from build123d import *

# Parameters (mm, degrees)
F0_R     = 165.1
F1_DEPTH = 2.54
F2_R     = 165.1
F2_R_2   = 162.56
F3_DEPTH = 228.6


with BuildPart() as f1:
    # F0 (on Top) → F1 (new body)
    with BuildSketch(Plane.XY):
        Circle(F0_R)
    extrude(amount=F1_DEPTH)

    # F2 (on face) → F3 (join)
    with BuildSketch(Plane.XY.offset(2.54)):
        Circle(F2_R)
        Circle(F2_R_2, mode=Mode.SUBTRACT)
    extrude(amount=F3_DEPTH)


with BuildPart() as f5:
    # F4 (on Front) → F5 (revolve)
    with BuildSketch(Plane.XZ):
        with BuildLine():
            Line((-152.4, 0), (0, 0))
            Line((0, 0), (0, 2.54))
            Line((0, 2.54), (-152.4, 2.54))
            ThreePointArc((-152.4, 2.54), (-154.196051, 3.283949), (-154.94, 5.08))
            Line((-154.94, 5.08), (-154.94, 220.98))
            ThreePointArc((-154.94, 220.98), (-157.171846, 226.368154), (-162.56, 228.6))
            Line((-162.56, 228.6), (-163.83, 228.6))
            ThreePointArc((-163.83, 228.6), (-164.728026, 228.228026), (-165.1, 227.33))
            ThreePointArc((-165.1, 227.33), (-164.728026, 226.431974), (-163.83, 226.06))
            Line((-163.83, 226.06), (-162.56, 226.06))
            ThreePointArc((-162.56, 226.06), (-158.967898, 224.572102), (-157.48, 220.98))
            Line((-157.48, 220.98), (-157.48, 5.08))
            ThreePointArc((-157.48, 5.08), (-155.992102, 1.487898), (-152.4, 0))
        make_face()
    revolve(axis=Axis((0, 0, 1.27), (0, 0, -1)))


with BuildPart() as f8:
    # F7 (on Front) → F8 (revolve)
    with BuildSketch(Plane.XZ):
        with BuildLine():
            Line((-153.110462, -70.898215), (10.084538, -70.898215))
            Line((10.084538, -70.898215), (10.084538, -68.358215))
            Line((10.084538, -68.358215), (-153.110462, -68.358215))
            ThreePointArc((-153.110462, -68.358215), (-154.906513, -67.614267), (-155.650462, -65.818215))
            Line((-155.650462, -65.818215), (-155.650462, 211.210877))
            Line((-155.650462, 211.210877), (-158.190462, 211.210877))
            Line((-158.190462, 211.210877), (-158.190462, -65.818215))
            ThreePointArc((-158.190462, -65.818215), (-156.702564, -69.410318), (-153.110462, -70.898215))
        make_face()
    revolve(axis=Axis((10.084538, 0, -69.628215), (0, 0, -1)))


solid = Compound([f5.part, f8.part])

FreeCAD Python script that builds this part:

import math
import FreeCAD as App
import Part
import Sketcher
Q = App.Units.Quantity

doc = App.newDocument("Part")
params = doc.addObject("Spreadsheet::Sheet", "Params")
for row, (alias, value) in enumerate([
    ("sketch1_diameter", "13 in"),
    ("pad1_length", "0.1 in"),
    ("sketch2_diameter", "13 in"),
    ("sketch2_diameter2", "12.8 in"),
    ("pad2_length", "9 in"),
    ("sketch3_radius", "0.1 in"),
    ("sketch3_radius2", "0.3 in"),
    ("sketch3_width", "6 in"),
    ("sketch3_height", "8.5 in"),
    ("sketch3_width2", "0.05 in"),
    ("revolution_angle", "360 deg"),
    ("sketch4_radius", "0.1 in"),
    ("sketch4_radius2", "0.2 in"),
    ("sketch4_width", "6.425 in"),
    ("revolution2_angle", "360 deg"),
], start=1):
    params.set(f"A{row}", alias)
    params.set(f"B{row}", "=" + value)
    params.setAlias(f"B{row}", alias)

body = doc.addObject("PartDesign::Body", "Body")

# Sketch on XY plane
sketch1 = doc.addObject("Sketcher::SketchObject", "Sketch")
body.addObject(sketch1)
sketch1.AttachmentSupport = (doc.XY_Plane, [""])
sketch1.MapMode = "FlatFace"
sketch1.addGeometry(Part.Circle(App.Vector(0, 0, 0), App.Vector(0, 0, 1), 165), False)
sketch1.addConstraint([
    Sketcher.Constraint("Coincident", 0, 3, -1, 1),
    Sketcher.Constraint("Diameter", 0, Q("13 in")),
])
sketch1.setExpression("Constraints[1]", "Params.sketch1_diameter")
pad1 = doc.addObject("PartDesign::Pad", "Pad")
body.addObject(pad1)
pad1.Profile = sketch1
pad1.setExpression("Length", "Params.pad1_length")

# Sketch on XY plane
sketch2 = doc.addObject("Sketcher::SketchObject", "Sketch001")
body.addObject(sketch2)
sketch2.AttachmentSupport = (doc.XY_Plane, [""])
sketch2.MapMode = "FlatFace"
sketch2.AttachmentOffset = App.Placement(App.Vector(0, 0, 0.1 * 25.4), App.Rotation())
sketch2.addGeometry([
    Part.Circle(App.Vector(0, 0, 0), App.Vector(0, 0, 1), 165),
    Part.Circle(App.Vector(0, 0, 0), App.Vector(0, 0, 1), 163),
], False)
sketch2.addConstraint([
    Sketcher.Constraint("Coincident", 0, 3, -1, 1),
    Sketcher.Constraint("Coincident", 1, 3, -1, 1),
    Sketcher.Constraint("Diameter", 0, Q("13 in")),
    Sketcher.Constraint("Diameter", 1, Q("12.8 in")),
])
sketch2.setExpression("Constraints[2]", "Params.sketch2_diameter")
sketch2.setExpression("Constraints[3]", "Params.sketch2_diameter2")
pad2 = doc.addObject("PartDesign::Pad", "Pad001")
body.addObject(pad2)
pad2.Profile = sketch2
pad2.setExpression("Length", "Params.pad2_length")
body2 = doc.addObject("PartDesign::Body", "Body001")

# Sketch on XZ plane
sketch3 = doc.addObject("Sketcher::SketchObject", "Sketch002")
body2.addObject(sketch3)
sketch3.AttachmentSupport = (doc.getObject("XZ_Plane001"), [""])
sketch3.MapMode = "FlatFace"
sketch3.addGeometry([
    Part.LineSegment(App.Vector(-152.4, 0, 0), App.Vector(0, 0, 0)),  # 0
    Part.LineSegment(App.Vector(0, 0, 0), App.Vector(0, 2.5, 0)),  # 1
    Part.LineSegment(App.Vector(0, 2.5, 0), App.Vector(-152.4, 2.5, 0)),  # 2
    Part.ArcOfCircle(Part.Circle(App.Vector(-152.4, 5.1, 0), App.Vector(0, 0, 1), 2.5), math.radians(-180), math.radians(-90)),  # 3
    Part.LineSegment(App.Vector(-154.9, 5.1, 0), App.Vector(-154.9, 221, 0)),  # 4
    Part.ArcOfCircle(Part.Circle(App.Vector(-162.6, 221, 0), App.Vector(0, 0, 1), 7.6), math.radians(0), math.radians(90)),  # 5
    Part.LineSegment(App.Vector(-162.6, 228.6, 0), App.Vector(-163.8, 228.6, 0)),  # 6
    Part.ArcOfCircle(Part.Circle(App.Vector(-163.8, 227.3, 0), App.Vector(0, 0, 1), 1.3), math.radians(90), math.radians(180)),  # 7
    Part.ArcOfCircle(Part.Circle(App.Vector(-163.8, 227.3, 0), App.Vector(0, 0, 1), 1.3), math.radians(180), math.radians(270)),  # 8
    Part.LineSegment(App.Vector(-163.8, 226.1, 0), App.Vector(-162.6, 226.1, 0)),  # 9
    Part.ArcOfCircle(Part.Circle(App.Vector(-162.6, 221, 0), App.Vector(0, 0, 1), 5.1), math.radians(0), math.radians(90)),  # 10
    Part.LineSegment(App.Vector(-157.5, 221, 0), App.Vector(-157.5, 5.1, 0)),  # 11
    Part.ArcOfCircle(Part.Circle(App.Vector(-152.4, 5.1, 0), App.Vector(0, 0, 1), 5.1), math.radians(-180), math.radians(-90)),  # 12
], False)
sketch3.addConstraint([
    Sketcher.Constraint("Coincident", 0, 2, 1, 1),
    Sketcher.Constraint("Coincident", 1, 2, 2, 1),
    Sketcher.Constraint("Tangent", 2, 2, 3, 2),
    Sketcher.Constraint("Tangent", 3, 1, 4, 1),
    Sketcher.Constraint("Tangent", 4, 2, 5, 1),
    Sketcher.Constraint("Tangent", 5, 2, 6, 1),
    Sketcher.Constraint("Tangent", 6, 2, 7, 1),
    Sketcher.Constraint("Coincident", 7, 2, 8, 1),
    Sketcher.Constraint("Tangent", 8, 2, 9, 1),
    Sketcher.Constraint("Tangent", 9, 2, 10, 2),
    Sketcher.Constraint("Tangent", 10, 1, 11, 1),
    Sketcher.Constraint("Tangent", 11, 2, 12, 1),
    Sketcher.Constraint("Tangent", 12, 2, 0, 1),
    Sketcher.Constraint("Horizontal", 0),
    Sketcher.Constraint("Vertical", 1),
    Sketcher.Constraint("Horizontal", 2),
    Sketcher.Constraint("Vertical", 4),
    Sketcher.Constraint("Horizontal", 6),
    Sketcher.Constraint("Horizontal", 9),
    Sketcher.Constraint("Vertical", 11),
    Sketcher.Constraint("Coincident", 0, 2, -1, 1),
    Sketcher.Constraint("Coincident", 8, 3, 7, 3),
    Sketcher.Constraint("Coincident", 10, 3, 5, 3),
    Sketcher.Constraint("Coincident", 12, 3, 3, 3),
    Sketcher.Constraint("Equal", 10, 12),
    Sketcher.Constraint("Horizontal", 8, 3, 7, 2),
    Sketcher.Constraint("Radius", 3, Q("0.1 in")),
    Sketcher.Constraint("Radius", 5, Q("0.3 in")),
    Sketcher.Constraint("DistanceX", 0, 1, 0, 2, Q("6 in")),
    Sketcher.Constraint("DistanceY", 4, 1, 4, 2, Q("8.5 in")),
    Sketcher.Constraint("DistanceX", 6, 2, 6, 1, Q("0.05 in")),
])
sketch3.setExpression("Constraints[26]", "Params.sketch3_radius")
sketch3.setExpression("Constraints[27]", "Params.sketch3_radius2")
sketch3.setExpression("Constraints[28]", "Params.sketch3_width")
sketch3.setExpression("Constraints[29]", "Params.sketch3_height")
sketch3.setExpression("Constraints[30]", "Params.sketch3_width2")
revolution = doc.addObject("PartDesign::Revolution", "Revolution")
body2.addObject(revolution)
revolution.Profile = sketch3
revolution.ReferenceAxis = (sketch3, ["V_Axis"])
revolution.setExpression("Angle", "Params.revolution_angle")
body3 = doc.addObject("PartDesign::Body", "Body002")

# Sketch on XZ plane
sketch4 = doc.addObject("Sketcher::SketchObject", "Sketch003")
body3.addObject(sketch4)
sketch4.AttachmentSupport = (doc.getObject("XZ_Plane002"), [""])
sketch4.MapMode = "FlatFace"
sketch4.addGeometry([
    Part.LineSegment(App.Vector(-153.1, -70.9, 0), App.Vector(10.1, -70.9, 0)),  # 0
    Part.LineSegment(App.Vector(10.1, -70.9, 0), App.Vector(10.1, -68.4, 0)),  # 1
    Part.LineSegment(App.Vector(10.1, -68.4, 0), App.Vector(-153.1, -68.4, 0)),  # 2
    Part.ArcOfCircle(Part.Circle(App.Vector(-153.1, -65.8, 0), App.Vector(0, 0, 1), 2.5), math.radians(180), math.radians(270)),  # 3
    Part.LineSegment(App.Vector(-155.7, -65.8, 0), App.Vector(-155.7, 211.2, 0)),  # 4
    Part.LineSegment(App.Vector(-155.7, 211.2, 0), App.Vector(-158.2, 211.2, 0)),  # 5
    Part.LineSegment(App.Vector(-158.2, 211.2, 0), App.Vector(-158.2, -65.8, 0)),  # 6
    Part.ArcOfCircle(Part.Circle(App.Vector(-153.1, -65.8, 0), App.Vector(0, 0, 1), 5.1), math.radians(180), math.radians(270)),  # 7
], False)
sketch4.addGeometry(Part.LineSegment(App.Vector(10.1, 211.2, 0), App.Vector(10.1, -70.9, 0)), True)  # axis
sketch4.addConstraint([
    Sketcher.Constraint("Coincident", 0, 2, 1, 1),
    Sketcher.Constraint("Coincident", 1, 2, 2, 1),
    Sketcher.Constraint("Tangent", 2, 2, 3, 2),
    Sketcher.Constraint("Tangent", 3, 1, 4, 1),
    Sketcher.Constraint("Coincident", 4, 2, 5, 1),
    Sketcher.Constraint("Coincident", 5, 2, 6, 1),
    Sketcher.Constraint("Tangent", 6, 2, 7, 1),
    Sketcher.Constraint("Tangent", 7, 2, 0, 1),
    Sketcher.Constraint("Horizontal", 0),
    Sketcher.Constraint("Vertical", 1),
    Sketcher.Constraint("Horizontal", 2),
    Sketcher.Constraint("Vertical", 4),
    Sketcher.Constraint("Horizontal", 5),
    Sketcher.Constraint("Vertical", 6),
    Sketcher.Constraint("Vertical", 8),
    Sketcher.Constraint("Coincident", 7, 3, 3, 3),
    Sketcher.Constraint("Coincident", 8, 2, 0, 2),
    Sketcher.Constraint("Horizontal", 5, 2, 8, 1),
    Sketcher.Constraint("Radius", 3, Q("0.1 in")),
    Sketcher.Constraint("Radius", 7, Q("0.2 in")),
    Sketcher.Constraint("DistanceX", 0, 1, 0, 2, Q("6.425 in")),
    Sketcher.Constraint("DistanceY", 4, 1, 4, 2, Q("277.029092 mm")),
    Sketcher.Constraint("DistanceX", 3, 1, -1, 1, Q("155.650462 mm")),
    Sketcher.Constraint("DistanceY", 3, 3, -1, 1, Q("65.818216 mm")),
])
sketch4.setExpression("Constraints[18]", "Params.sketch4_radius")
sketch4.setExpression("Constraints[19]", "Params.sketch4_radius2")
sketch4.setExpression("Constraints[20]", "Params.sketch4_width")
revolution2 = doc.addObject("PartDesign::Revolution", "Revolution001")
body3.addObject(revolution2)
revolution2.Profile = sketch4
revolution2.ReferenceAxis = (sketch4, ["Axis0"])
revolution2.setExpression("Angle", "Params.revolution2_angle")
body.Visibility = False

doc.recompute()
